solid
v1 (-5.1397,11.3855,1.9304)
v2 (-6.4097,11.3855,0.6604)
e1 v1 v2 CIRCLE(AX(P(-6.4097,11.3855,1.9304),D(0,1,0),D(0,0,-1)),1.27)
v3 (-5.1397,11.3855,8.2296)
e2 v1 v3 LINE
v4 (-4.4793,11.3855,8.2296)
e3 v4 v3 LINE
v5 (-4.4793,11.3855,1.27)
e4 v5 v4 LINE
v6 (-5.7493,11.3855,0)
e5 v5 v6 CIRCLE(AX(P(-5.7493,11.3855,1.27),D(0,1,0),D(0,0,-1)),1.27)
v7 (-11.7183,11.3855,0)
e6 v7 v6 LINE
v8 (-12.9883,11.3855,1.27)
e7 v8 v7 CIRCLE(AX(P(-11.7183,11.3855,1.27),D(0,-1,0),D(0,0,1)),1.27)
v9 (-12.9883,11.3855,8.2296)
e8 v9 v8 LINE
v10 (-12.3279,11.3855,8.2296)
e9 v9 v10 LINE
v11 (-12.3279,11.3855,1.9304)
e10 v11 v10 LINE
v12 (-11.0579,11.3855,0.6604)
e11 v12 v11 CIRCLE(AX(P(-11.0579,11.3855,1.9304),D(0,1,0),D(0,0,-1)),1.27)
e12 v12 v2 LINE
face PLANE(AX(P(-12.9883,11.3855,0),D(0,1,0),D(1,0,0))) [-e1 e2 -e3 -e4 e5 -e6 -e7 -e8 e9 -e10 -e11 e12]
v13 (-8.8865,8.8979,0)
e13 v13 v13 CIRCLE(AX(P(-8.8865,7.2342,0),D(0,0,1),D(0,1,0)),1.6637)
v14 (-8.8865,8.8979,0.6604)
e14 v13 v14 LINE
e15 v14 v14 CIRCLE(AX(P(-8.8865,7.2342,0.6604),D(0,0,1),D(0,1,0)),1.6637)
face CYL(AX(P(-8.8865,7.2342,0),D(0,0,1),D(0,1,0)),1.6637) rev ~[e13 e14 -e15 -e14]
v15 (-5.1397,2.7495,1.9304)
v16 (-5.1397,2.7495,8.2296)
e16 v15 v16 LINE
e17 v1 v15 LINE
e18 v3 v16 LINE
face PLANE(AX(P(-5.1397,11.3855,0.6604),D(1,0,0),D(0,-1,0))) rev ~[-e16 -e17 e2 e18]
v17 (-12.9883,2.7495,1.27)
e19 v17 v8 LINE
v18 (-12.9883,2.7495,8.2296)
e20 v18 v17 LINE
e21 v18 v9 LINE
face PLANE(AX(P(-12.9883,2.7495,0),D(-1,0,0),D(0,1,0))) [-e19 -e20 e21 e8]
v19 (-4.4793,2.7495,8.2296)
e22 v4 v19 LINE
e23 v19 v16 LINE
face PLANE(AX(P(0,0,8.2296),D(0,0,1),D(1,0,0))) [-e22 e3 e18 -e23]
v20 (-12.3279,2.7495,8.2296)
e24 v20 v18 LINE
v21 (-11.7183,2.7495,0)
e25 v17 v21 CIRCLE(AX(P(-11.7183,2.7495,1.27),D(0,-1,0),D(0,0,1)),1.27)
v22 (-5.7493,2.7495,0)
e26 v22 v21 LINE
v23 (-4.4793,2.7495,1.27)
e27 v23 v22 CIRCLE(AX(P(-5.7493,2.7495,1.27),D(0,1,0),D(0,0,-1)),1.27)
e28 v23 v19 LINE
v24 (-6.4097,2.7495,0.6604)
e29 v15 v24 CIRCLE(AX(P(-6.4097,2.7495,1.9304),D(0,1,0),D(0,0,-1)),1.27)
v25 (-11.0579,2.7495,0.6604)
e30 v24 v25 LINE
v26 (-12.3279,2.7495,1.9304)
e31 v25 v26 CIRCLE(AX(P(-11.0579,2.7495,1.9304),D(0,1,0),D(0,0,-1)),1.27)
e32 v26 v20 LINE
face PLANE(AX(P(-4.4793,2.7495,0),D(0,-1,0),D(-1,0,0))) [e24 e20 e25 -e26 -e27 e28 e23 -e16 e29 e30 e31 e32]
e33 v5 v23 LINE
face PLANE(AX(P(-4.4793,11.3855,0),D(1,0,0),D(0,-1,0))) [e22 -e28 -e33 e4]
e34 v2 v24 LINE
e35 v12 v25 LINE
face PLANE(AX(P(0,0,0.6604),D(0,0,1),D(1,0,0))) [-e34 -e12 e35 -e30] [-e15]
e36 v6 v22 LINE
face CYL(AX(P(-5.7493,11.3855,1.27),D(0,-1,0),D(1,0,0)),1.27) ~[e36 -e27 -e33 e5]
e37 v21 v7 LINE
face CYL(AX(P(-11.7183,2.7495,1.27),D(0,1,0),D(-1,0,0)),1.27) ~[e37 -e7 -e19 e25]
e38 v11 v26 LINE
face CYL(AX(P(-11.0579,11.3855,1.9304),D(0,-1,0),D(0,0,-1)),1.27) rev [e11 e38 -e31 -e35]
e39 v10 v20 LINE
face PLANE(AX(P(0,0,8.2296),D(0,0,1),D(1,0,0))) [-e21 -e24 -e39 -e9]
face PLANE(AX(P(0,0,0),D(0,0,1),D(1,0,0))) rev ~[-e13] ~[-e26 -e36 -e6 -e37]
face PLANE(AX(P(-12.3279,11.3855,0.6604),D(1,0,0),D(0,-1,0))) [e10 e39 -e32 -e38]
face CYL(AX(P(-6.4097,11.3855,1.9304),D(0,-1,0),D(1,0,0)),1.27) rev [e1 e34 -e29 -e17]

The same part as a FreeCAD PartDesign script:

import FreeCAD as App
import Part
import Sketcher

V = App.Vector
Q = App.Units.Quantity


def edges_at(feature, points):
    """Names of the edges that pass closest to the given points."""
    edges = feature.Shape.Edges
    near = lambda p: min(range(len(edges)), key=lambda i: edges[i].distToShape(Part.Vertex(*p))[0])
    return sorted({f"Edge{near(p) + 1}" for p in points})

doc = App.newDocument("Part")
body = doc.addObject("PartDesign::Body", "Body")

# Sketch on XY plane
sketch1 = doc.addObject("Sketcher::SketchObject", "Sketch")
body.addObject(sketch1)
sketch1.AttachmentSupport = (doc.XY_Plane, [""])
sketch1.MapMode = "FlatFace"
sketch1.addGeometry(Part.LineSegment(V(-12.9883, 2.7495, 0), V(-4.4793, 2.7495, 0)), False)
sketch1.addGeometry(Part.LineSegment(V(-4.4793, 2.7495, 0), V(-4.4793, 11.3855, 0)), False)
sketch1.addGeometry(Part.LineSegment(V(-4.4793, 11.3855, 0), V(-12.9883, 11.3855, 0)), False)
sketch1.addGeometry(Part.LineSegment(V(-12.9883, 11.3855, 0), V(-12.9883, 2.7495, 0)), False)
sketch1.addConstraint(Sketcher.Constraint("Coincident", 0, 2, 1, 1))
sketch1.addConstraint(Sketcher.Constraint("Coincident", 1, 2, 2, 1))
sketch1.addConstraint(Sketcher.Constraint("Coincident", 2, 2, 3, 1))
sketch1.addConstraint(Sketcher.Constraint("Coincident", 3, 2, 0, 1))
sketch1.addConstraint(Sketcher.Constraint("Horizontal", 0))
sketch1.addConstraint(Sketcher.Constraint("Vertical", 1))
sketch1.addConstraint(Sketcher.Constraint("Horizontal", 2))
sketch1.addConstraint(Sketcher.Constraint("Vertical", 3))
sketch1.addConstraint(Sketcher.Constraint("DistanceY", 1, 1, 1, 2, Q("0.34 in")))
sketch1.addConstraint(Sketcher.Constraint("DistanceX", 0, 1, 0, 2, Q("0.335 in")))
sketch1.addConstraint(Sketcher.Constraint("DistanceX", 0, 2, -1, 1, Q("4.4793 mm")))
sketch1.addConstraint(Sketcher.Constraint("DistanceY", -1, 1, 0, 2, Q("2.7495 mm")))
pad1 = doc.addObject("PartDesign::Pad", "Pad")
body.addObject(pad1)
pad1.Profile = sketch1
pad1.Length = Q("0.026 in")

# Sketch on XY plane
sketch2 = doc.addObject("Sketcher::SketchObject", "Sketch001")
body.addObject(sketch2)
sketch2.AttachmentSupport = (doc.XY_Plane, [""])
sketch2.MapMode = "FlatFace"
sketch2.AttachmentOffset = App.Placement(V(0, 0, 0.026 * 25.4), App.Rotation())
sketch2.addGeometry(Part.LineSegment(V(-5.1397, 11.3855, 0), V(-5.1397, 2.7495, 0)), False)
sketch2.addGeometry(Part.LineSegment(V(-5.1397, 2.7495, 0), V(-4.4793, 2.7495, 0)), False)
sketch2.addGeometry(Part.LineSegment(V(-4.4793, 2.7495, 0), V(-4.4793, 11.3855, 0)), False)
sketch2.addGeometry(Part.LineSegment(V(-4.4793, 11.3855, 0), V(-5.1397, 11.3855, 0)), False)
sketch2.addGeometry(Part.LineSegment(V(-12.9883, 11.3855, 0), V(-12.9883, 2.7495, 0)), False)
sketch2.addGeometry(Part.LineSegment(V(-12.9883, 2.7495, 0), V(-12.3279, 2.7495, 0)), False)
sketch2.addGeometry(Part.LineSegment(V(-12.3279, 2.7495, 0), V(-12.3279, 11.3855, 0)), False)
sketch2.addGeometry(Part.LineSegment(V(-12.3279, 11.3855, 0), V(-12.9883, 11.3855, 0)), False)
sketch2.addConstraint(Sketcher.Constraint("Coincident", 0, 2, 1, 1))
sketch2.addConstraint(Sketcher.Constraint("Coincident", 1, 2, 2, 1))
sketch2.addConstraint(Sketcher.Constraint("Coincident", 2, 2, 3, 1))
sketch2.addConstraint(Sketcher.Constraint("Coincident", 3, 2, 0, 1))
sketch2.addConstraint(Sketcher.Constraint("Coincident", 4, 2, 5, 1))
sketch2.addConstraint(Sketcher.Constraint("Coincident", 5, 2, 6, 1))
sketch2.addConstraint(Sketcher.Constraint("Coincident", 6, 2, 7, 1))
sketch2.addConstraint(Sketcher.Constraint("Coincident", 7, 2, 4, 1))
sketch2.addConstraint(Sketcher.Constraint("Vertical", 0))
sketch2.addConstraint(Sketcher.Constraint("Horizontal", 1))
sketch2.addConstraint(Sketcher.Constraint("Vertical", 2))
sketch2.addConstraint(Sketcher.Constraint("Horizontal", 3))
sketch2.addConstraint(Sketcher.Constraint("Vertical", 4))
sketch2.addConstraint(Sketcher.Constraint("Horizontal", 5))
sketch2.addConstraint(Sketcher.Constraint("Vertical", 6))
sketch2.addConstraint(Sketcher.Constraint("Horizontal", 7))
sketch2.addConstraint(Sketcher.Constraint("Horizontal", 1, 2, 4, 2))
sketch2.addConstraint(Sketcher.Constraint("Horizontal", 3, 2, 6, 2))
sketch2.addConstraint(Sketcher.Constraint("Equal", 3, 5))
sketch2.addConstraint(Sketcher.Constraint("DistanceX", 1, 1, 1, 2, Q("0.026 in")))
sketch2.addConstraint(Sketcher.Constraint("DistanceY", 0, 2, 0, 1, Q("0.34 in")))
sketch2.addConstraint(Sketcher.Constraint("DistanceX", 4, 2, 0, 2, Q("0.309 in")))
sketch2.addConstraint(Sketcher.Constraint("DistanceX", 0, 2, -1, 1, Q("5.1397 mm")))
sketch2.addConstraint(Sketcher.Constraint("DistanceY", -1, 1, 0, 2, Q("2.7495 mm")))
pad2 = doc.addObject("PartDesign::Pad", "Pad001")
body.addObject(pad2)
pad2.Profile = sketch2
pad2.Length = Q("0.298 in")
doc.recompute()

fillet = doc.addObject("PartDesign::Fillet", "Fillet")
body.addObject(fillet)
fillet.Base = (pad2, edges_at(pad2, [(-4.479, 7.067, 0), (-12.988, 7.067, 0)]))
fillet.Radius = Q("0.05 in")
doc.recompute()

fillet2 = doc.addObject("PartDesign::Fillet", "Fillet001")
body.addObject(fillet2)
fillet2.Base = (fillet, edges_at(fillet, [(-12.328, 7.067, 0.66), (-5.14, 7.067, 0.66)]))
fillet2.Radius = Q("0.05 in")

# Sketch on XY plane
sketch3 = doc.addObject("Sketcher::SketchObject", "Sketch002")
body.addObject(sketch3)
sketch3.AttachmentSupport = (doc.XY_Plane, [""])
sketch3.MapMode = "FlatFace"
sketch3.addGeometry(Part.Circle(V(-8.8865, 7.2342, 0), V(0, 0, 1), 1.6637), False)
sketch3.addConstraint(Sketcher.Constraint("Diameter", 0, Q("0.131 in")))
sketch3.addConstraint(Sketcher.Constraint("DistanceY", -1, 1, 0, 3, Q("0.2848 in")))
sketch3.addConstraint(Sketcher.Constraint("DistanceX", 0, 3, -1, 1, Q("8.8865 mm")))
doc.recompute()
hole = doc.addObject("PartDesign::Hole", "Hole")
body.addObject(hole)
hole.Profile = sketch3
hole.ThreadType = "None"
hole.Diameter = Q("0.131 in")
hole.DepthType = "Dimension"
hole.Depth = Q("0.75 in")
hole.DrillPoint = "Angled"
hole.DrillPointAngle = 118
hole.Reversed = True

doc.recompute()
